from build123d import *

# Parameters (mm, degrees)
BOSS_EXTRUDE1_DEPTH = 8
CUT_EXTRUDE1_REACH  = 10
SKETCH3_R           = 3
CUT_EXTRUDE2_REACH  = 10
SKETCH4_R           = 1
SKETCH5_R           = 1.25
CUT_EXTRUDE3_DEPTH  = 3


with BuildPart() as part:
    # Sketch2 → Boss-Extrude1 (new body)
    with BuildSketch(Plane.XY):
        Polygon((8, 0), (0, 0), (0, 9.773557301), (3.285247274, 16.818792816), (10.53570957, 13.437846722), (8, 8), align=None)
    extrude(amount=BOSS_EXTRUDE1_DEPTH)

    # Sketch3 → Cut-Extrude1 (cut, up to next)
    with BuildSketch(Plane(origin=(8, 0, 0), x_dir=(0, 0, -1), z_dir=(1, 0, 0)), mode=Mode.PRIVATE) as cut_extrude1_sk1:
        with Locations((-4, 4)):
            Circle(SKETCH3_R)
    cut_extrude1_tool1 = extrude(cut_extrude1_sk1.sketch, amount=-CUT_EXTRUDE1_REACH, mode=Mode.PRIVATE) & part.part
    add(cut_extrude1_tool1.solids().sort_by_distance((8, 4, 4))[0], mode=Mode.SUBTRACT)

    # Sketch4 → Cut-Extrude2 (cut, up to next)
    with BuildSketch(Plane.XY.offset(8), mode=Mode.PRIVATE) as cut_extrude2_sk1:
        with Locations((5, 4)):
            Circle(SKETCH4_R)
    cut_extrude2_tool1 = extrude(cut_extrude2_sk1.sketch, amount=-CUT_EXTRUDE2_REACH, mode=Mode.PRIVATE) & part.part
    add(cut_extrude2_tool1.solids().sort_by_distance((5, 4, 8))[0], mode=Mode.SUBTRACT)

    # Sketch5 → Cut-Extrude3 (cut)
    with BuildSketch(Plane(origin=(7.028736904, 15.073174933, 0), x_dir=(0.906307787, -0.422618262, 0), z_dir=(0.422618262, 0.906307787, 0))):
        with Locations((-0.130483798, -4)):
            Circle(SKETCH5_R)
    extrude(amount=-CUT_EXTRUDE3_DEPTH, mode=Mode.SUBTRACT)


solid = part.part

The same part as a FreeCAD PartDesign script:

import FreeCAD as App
import Part
import Sketcher
from FreeCAD import Vector
Q = App.Units.Quantity

doc = App.newDocument("Part")
body = doc.addObject("PartDesign::Body", "Body")

# Sketch on XY plane
sketch1 = body.newObject("Sketcher::SketchObject", "Sketch")
sketch1.AttachmentSupport = (doc.getObject("XY_Plane"), [""])
sketch1.MapMode = "FlatFace"
sketch1.addGeometry([
    Part.LineSegment(Vector(0, 0, 0), Vector(8, 0, 0)),  # 0
    Part.LineSegment(Vector(8, 0, 0), Vector(8, 8, 0)),  # 1
    Part.LineSegment(Vector(8, 8, 0), Vector(11, 13, 0)),  # 2
    Part.LineSegment(Vector(11, 13, 0), Vector(3, 17, 0)),  # 3
    Part.LineSegment(Vector(3, 17, 0), Vector(0, 10, 0)),  # 4
    Part.LineSegment(Vector(0, 10, 0), Vector(0, 0, 0)),  # 5
], False)
sketch1.addConstraint([
    Sketcher.Constraint("Coincident", 0, 2, 1, 1),
    Sketcher.Constraint("Coincident", 1, 2, 2, 1),
    Sketcher.Constraint("Coincident", 2, 2, 3, 1),
    Sketcher.Constraint("Coincident", 3, 2, 4, 1),
    Sketcher.Constraint("Coincident", 4, 2, 5, 1),
    Sketcher.Constraint("Coincident", 5, 2, 0, 1),
    Sketcher.Constraint("Horizontal", 0),
    Sketcher.Constraint("Vertical", 1),
    Sketcher.Constraint("Vertical", 5),
    Sketcher.Constraint("Coincident", 5, 2, -1, 1),
    Sketcher.Constraint("Perpendicular", 2, 3),
    Sketcher.Constraint("Perpendicular", 3, 4),
    Sketcher.Constraint("Equal", 0, 1),
    Sketcher.Constraint("DistanceX", 0, 1, 0, 2, Q("8 mm")),
    Sketcher.Constraint("Angle", 2, Q("65 deg")),
    Sketcher.Constraint("Distance", 2, Q("6 mm")),
    Sketcher.Constraint("Distance", 3, Q("8 mm")),
])
pad1 = body.newObject("PartDesign::Pad", "Pad")
pad1.Profile = sketch1
pad1.Length = 8

# Sketch on YZ plane
sketch2 = body.newObject("Sketcher::SketchObject", "Sketch001")
sketch2.AttachmentSupport = (doc.getObject("YZ_Plane"), [""])
sketch2.MapMode = "FlatFace"
sketch2.AttachmentOffset = App.Placement(Vector(0, 0, 8), App.Rotation())
sketch2.addGeometry(Part.Circle(Vector(4, 4, 0), Vector(0, 0, 1), 3), False)
sketch2.addConstraint([
    Sketcher.Constraint("Diameter", 0, Q("6 mm")),
    Sketcher.Constraint("DistanceX", -1, 1, 0, 3, Q("4 mm")),
    Sketcher.Constraint("DistanceY", -1, 1, 0, 3, Q("4 mm")),
])
pocket1 = body.newObject("PartDesign::Pocket", "Pocket")
pocket1.Profile = sketch2
pocket1.Type = "UpToFirst"

# Sketch on XY plane
sketch3 = body.newObject("Sketcher::SketchObject", "Sketch002")
sketch3.AttachmentSupport = (doc.getObject("XY_Plane"), [""])
sketch3.MapMode = "FlatFace"
sketch3.AttachmentOffset = App.Placement(Vector(0, 0, 8), App.Rotation())
sketch3.addGeometry(Part.Circle(Vector(5, 4, 0), Vector(0, 0, 1), 1), False)
sketch3.addConstraint([
    Sketcher.Constraint("Diameter", 0, Q("2 mm")),
    Sketcher.Constraint("DistanceX", -1, 1, 0, 3, Q("5 mm")),
    Sketcher.Constraint("DistanceY", -1, 1, 0, 3, Q("4 mm")),
])
pocket2 = body.newObject("PartDesign::Pocket", "Pocket001")
pocket2.Profile = sketch3
pocket2.Type = "UpToFirst"

# Sketch on an angled plane
sketch4 = body.newObject("Sketcher::SketchObject", "Sketch003")
sketch4.Placement = App.Placement(Vector(7.028737, 15.073175, 0), App.Rotation(Vector(0.906307787, -0.422618262, 0), Vector(0, 0, -1), Vector(0.422618262, 0.906307787, 0), "ZXY"))
sketch4.addGeometry(Part.Circle(Vector(-0.1, -4, 0), Vector(0, 0, 1), 1.2), False)
sketch4.addConstraint([
    Sketcher.Constraint("Diameter", 0, Q("2.5 mm")),
    Sketcher.Constraint("DistanceY", 0, 3, -1, 1, Q("4 mm")),
    Sketcher.Constraint("DistanceX", 0, 3, -1, 1, Q("0.130484 mm")),
])
pocket3 = body.newObject("PartDesign::Pocket", "Pocket002")
pocket3.Profile = sketch4
pocket3.Length = 3

doc.recompute()
